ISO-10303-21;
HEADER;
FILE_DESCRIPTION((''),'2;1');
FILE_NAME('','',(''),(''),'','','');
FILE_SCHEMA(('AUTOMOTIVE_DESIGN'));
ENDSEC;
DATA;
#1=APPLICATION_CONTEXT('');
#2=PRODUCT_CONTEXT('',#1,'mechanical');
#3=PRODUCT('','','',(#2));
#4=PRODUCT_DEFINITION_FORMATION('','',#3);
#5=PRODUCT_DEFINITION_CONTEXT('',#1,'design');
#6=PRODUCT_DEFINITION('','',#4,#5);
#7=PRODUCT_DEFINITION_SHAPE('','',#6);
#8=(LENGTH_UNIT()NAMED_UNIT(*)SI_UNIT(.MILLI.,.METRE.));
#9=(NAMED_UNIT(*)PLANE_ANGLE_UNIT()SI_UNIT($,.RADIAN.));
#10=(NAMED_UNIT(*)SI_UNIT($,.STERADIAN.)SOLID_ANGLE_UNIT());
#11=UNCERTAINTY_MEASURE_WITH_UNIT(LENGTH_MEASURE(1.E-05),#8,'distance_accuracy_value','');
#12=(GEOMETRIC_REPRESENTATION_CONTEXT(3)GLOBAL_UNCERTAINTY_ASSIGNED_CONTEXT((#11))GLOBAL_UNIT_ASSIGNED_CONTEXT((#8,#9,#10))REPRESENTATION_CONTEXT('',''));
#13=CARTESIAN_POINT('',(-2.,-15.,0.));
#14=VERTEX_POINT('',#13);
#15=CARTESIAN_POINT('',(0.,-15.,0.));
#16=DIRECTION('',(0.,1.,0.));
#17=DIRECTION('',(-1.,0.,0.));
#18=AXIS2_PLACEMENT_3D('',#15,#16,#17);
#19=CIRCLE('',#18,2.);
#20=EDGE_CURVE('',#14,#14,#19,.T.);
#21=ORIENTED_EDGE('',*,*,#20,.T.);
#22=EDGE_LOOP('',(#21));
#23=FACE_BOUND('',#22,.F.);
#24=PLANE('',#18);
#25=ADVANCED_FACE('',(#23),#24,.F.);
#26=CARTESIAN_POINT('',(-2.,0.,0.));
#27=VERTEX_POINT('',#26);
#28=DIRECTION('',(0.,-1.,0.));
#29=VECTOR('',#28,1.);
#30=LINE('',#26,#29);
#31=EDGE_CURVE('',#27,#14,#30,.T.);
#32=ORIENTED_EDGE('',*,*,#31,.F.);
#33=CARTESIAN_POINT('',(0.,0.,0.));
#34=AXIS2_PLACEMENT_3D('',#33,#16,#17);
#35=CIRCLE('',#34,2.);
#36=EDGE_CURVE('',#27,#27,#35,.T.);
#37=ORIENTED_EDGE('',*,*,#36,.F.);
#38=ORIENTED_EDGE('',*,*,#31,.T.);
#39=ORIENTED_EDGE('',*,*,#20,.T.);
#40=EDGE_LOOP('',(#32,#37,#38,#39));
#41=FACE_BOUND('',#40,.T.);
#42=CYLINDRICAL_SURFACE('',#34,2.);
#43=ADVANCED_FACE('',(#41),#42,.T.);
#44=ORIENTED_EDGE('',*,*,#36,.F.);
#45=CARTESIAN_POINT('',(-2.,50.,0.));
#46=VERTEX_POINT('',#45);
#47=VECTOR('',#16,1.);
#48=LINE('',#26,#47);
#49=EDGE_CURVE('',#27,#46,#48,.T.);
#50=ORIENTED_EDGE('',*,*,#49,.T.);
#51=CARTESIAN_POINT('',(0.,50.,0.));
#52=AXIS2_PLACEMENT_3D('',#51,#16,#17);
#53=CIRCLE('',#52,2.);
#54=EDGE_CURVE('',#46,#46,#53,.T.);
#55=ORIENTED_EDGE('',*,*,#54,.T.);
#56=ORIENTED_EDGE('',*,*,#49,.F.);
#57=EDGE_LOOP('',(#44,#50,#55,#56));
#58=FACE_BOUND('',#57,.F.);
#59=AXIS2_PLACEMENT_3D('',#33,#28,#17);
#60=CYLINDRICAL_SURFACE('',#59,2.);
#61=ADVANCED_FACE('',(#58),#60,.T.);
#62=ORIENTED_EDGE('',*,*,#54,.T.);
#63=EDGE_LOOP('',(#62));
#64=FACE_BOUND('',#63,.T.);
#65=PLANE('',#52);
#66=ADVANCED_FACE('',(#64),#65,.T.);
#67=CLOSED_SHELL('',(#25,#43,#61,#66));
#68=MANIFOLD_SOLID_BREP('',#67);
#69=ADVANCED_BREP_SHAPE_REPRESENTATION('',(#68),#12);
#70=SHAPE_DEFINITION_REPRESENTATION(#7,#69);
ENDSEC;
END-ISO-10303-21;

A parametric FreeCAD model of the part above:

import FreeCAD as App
import Part
import Sketcher

doc = App.newDocument("Part")
body = doc.addObject("PartDesign::Body", "Body")

sketch1 = body.newObject("Sketcher::SketchObject", "Sketch")
sketch1.AttachmentSupport = (doc.getObject("XZ_Plane"), [""])
sketch1.MapMode = "FlatFace"
sketch1.addGeometry(Part.Circle(App.Vector(0, 0, 0), App.Vector(0, 0, 1), 2), False)
sketch1.addConstraint([
    Sketcher.Constraint("Coincident", 0, 3, -1, 1),
    Sketcher.Constraint("Diameter", 0, 4.0),
])
pad1 = body.newObject("PartDesign::Pad", "Pad")
pad1.Profile = sketch1
pad1.Type = "TwoLengths"
pad1.Length = 50
pad1.Length2 = 15
pad1.Reversed = True

doc.recompute()
